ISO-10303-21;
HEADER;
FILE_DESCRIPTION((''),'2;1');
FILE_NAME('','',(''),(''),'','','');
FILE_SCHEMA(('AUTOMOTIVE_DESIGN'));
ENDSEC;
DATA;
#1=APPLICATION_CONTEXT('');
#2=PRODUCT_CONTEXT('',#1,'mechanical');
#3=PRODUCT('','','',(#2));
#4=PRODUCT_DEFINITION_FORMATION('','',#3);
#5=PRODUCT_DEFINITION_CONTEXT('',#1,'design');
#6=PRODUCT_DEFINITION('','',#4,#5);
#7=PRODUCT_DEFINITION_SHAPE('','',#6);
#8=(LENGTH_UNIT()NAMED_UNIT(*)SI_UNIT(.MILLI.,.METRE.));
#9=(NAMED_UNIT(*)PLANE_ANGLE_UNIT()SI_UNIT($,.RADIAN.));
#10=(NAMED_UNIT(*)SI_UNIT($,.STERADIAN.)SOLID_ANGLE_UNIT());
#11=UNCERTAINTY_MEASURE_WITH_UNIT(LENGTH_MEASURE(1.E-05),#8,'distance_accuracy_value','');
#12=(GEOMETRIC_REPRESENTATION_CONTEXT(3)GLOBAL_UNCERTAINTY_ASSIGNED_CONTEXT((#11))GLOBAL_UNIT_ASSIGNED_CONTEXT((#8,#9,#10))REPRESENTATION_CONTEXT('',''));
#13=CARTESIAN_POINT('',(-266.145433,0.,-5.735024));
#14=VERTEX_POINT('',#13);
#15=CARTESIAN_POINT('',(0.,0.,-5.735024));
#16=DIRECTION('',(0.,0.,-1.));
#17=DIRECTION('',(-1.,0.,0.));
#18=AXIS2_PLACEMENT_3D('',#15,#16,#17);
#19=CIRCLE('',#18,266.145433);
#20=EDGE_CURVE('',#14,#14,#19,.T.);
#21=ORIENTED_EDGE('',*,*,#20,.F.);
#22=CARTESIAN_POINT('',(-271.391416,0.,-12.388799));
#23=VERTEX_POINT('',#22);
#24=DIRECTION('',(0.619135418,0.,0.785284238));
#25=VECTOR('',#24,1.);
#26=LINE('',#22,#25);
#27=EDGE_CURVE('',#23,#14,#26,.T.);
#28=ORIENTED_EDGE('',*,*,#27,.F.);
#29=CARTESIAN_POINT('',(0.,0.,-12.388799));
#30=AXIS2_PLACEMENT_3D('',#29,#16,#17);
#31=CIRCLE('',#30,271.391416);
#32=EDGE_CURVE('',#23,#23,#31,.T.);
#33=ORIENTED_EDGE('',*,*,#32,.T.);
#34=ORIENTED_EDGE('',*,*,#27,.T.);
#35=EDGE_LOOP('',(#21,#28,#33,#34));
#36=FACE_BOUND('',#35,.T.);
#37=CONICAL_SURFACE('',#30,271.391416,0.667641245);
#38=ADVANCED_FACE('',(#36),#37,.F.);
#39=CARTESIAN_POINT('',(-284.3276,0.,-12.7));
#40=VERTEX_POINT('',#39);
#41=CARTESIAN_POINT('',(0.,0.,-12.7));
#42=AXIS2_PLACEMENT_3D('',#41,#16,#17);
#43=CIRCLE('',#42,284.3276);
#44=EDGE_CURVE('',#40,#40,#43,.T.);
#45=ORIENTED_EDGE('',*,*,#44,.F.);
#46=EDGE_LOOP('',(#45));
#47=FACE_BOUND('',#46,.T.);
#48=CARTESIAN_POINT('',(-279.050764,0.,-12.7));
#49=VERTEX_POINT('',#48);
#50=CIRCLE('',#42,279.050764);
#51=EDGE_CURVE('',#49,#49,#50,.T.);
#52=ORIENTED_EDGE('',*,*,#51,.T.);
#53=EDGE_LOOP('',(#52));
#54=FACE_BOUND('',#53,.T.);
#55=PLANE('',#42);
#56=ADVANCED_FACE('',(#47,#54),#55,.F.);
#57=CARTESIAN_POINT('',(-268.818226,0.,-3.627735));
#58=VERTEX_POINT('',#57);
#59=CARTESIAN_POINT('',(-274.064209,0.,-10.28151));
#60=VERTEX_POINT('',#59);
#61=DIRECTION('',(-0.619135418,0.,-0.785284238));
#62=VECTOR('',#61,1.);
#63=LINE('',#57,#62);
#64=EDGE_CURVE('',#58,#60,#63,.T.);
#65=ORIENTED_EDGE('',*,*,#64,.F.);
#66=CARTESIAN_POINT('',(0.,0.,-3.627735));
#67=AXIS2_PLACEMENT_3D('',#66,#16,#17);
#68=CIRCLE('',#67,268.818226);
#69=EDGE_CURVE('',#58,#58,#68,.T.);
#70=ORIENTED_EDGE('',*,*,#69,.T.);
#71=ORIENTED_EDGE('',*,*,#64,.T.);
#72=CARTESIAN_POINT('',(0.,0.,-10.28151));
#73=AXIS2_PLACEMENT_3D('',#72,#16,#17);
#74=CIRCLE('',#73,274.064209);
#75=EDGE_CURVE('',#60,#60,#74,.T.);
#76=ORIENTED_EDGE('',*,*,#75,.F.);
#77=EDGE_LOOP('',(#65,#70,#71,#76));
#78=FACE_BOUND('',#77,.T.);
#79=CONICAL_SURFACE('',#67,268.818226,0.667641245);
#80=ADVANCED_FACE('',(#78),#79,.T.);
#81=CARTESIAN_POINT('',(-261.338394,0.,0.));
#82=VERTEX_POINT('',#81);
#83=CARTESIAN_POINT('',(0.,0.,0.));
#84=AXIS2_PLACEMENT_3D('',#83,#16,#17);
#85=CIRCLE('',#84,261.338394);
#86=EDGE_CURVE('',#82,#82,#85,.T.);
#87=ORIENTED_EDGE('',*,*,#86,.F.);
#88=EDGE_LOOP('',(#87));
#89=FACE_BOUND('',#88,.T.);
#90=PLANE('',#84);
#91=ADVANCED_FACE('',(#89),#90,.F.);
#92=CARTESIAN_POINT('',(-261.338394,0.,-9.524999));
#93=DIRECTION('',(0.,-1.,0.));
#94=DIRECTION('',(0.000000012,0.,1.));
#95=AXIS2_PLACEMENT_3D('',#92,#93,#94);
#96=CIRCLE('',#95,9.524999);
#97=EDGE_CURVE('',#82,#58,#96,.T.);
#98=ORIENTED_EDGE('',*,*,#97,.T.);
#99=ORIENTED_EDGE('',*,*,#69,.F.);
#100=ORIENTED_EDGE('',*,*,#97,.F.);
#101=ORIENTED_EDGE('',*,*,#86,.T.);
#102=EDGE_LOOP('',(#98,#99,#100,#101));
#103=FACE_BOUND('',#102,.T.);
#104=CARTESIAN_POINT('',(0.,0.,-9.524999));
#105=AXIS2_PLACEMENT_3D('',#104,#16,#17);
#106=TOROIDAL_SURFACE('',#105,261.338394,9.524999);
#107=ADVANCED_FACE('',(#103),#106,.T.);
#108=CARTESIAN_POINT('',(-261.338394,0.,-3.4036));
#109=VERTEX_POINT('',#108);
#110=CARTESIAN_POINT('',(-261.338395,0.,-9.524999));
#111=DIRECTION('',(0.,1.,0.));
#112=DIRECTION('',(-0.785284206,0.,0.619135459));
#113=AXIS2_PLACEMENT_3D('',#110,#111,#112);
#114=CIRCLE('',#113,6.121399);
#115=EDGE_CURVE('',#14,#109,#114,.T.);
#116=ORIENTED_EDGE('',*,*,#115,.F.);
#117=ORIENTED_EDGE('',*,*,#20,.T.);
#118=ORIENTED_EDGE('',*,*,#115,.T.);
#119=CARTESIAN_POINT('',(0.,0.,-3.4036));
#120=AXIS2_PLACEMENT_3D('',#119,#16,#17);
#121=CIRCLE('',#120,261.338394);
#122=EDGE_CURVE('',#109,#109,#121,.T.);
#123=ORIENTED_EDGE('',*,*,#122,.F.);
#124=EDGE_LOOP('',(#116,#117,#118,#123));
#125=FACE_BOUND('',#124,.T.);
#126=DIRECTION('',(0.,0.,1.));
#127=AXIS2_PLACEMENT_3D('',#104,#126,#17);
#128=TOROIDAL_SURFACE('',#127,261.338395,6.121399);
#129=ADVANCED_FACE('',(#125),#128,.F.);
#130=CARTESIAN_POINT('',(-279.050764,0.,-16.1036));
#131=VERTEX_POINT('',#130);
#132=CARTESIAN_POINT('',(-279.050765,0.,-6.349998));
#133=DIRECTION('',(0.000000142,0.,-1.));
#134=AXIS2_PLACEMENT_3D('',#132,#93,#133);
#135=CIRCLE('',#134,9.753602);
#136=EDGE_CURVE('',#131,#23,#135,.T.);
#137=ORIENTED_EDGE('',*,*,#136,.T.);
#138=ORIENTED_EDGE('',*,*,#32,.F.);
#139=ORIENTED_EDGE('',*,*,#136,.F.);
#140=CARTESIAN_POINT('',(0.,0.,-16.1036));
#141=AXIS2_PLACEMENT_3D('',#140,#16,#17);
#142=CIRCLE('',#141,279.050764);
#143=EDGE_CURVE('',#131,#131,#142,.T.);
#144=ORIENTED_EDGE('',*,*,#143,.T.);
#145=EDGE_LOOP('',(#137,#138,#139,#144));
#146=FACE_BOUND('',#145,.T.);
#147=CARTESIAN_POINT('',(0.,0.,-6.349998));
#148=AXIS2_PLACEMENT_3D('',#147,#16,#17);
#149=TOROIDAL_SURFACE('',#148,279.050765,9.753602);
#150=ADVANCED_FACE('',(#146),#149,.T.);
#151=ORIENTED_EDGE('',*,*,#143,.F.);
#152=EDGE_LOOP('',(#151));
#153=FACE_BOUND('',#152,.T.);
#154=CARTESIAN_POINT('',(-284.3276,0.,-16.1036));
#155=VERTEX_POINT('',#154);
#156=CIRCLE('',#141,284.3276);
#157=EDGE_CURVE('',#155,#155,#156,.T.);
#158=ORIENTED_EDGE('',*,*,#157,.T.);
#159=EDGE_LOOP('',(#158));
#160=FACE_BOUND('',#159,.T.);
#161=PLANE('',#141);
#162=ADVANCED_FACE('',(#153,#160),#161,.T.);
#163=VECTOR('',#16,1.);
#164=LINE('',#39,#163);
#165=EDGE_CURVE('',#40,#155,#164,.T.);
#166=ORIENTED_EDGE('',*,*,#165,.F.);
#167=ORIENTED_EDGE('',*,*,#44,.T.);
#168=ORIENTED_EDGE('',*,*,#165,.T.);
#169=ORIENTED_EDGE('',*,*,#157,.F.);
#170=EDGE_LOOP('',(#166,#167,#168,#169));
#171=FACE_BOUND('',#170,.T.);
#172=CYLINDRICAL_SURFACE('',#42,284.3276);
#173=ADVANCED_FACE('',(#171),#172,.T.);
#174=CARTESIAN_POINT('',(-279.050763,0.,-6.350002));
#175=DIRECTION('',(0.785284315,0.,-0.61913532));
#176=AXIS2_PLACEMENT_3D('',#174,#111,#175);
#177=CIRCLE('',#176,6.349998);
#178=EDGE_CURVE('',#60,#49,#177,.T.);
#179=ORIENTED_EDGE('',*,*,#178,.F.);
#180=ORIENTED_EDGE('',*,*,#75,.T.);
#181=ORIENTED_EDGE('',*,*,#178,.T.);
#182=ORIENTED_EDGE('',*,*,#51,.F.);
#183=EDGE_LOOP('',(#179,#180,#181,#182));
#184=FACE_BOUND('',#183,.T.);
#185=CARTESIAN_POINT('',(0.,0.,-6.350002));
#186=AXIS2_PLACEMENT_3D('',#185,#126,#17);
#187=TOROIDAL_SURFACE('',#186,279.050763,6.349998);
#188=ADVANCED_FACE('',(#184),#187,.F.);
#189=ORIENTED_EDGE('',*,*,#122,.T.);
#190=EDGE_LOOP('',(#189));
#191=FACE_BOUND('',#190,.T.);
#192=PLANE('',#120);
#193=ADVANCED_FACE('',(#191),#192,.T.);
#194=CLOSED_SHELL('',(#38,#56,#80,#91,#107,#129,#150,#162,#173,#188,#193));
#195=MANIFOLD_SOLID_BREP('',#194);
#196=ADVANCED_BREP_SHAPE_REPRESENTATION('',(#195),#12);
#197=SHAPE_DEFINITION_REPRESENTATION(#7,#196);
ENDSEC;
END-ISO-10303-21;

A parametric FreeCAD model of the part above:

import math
import FreeCAD as App
import Part
import Sketcher

V = App.Vector
Q = App.Units.Quantity

doc = App.newDocument("Part")
params = doc.addObject("Spreadsheet::Sheet", "Params")
for row, (alias, value) in enumerate([
    ("sketch1_radius", "0.2499999 in"),
    ("sketch1_radius2", "0.375 in"),
    ("sketch1_radius3", "0.3840001 in"),
    ("revolution_angle", "360 deg"),
], start=1):
    params.set(f"A{row}", alias)
    params.set(f"B{row}", "=" + value)
    params.setAlias(f"B{row}", alias)

body = doc.addObject("PartDesign::Body", "Body")

# Sketch on XZ plane
sketch1 = doc.addObject("Sketcher::SketchObject", "Sketch")
body.addObject(sketch1)
sketch1.AttachmentSupport = (doc.XZ_Plane, [""])
sketch1.MapMode = "FlatFace"
sketch1.addGeometry(Part.LineSegment(V(0, -3.4, 0), V(0, 0, 0)), False)
sketch1.addGeometry(Part.LineSegment(V(0, 0, 0), V(-261.3, 0, 0)), False)
sketch1.addGeometry(Part.ArcOfCircle(Part.Circle(V(-261.3, -9.5, 0), V(0, 0, 1), 9.5), math.radians(90), math.radians(142)), False)
sketch1.addGeometry(Part.LineSegment(V(-268.8, -3.6, 0), V(-274.1, -10.3, 0)), False)
sketch1.addGeometry(Part.ArcOfCircle(Part.Circle(V(-279.1, -6.4, 0), V(0, 0, 1), 6.3), math.radians(-90), math.radians(-38)), False)
sketch1.addGeometry(Part.LineSegment(V(-279.1, -12.7, 0), V(-284.3, -12.7, 0)), False)
sketch1.addGeometry(Part.LineSegment(V(-284.3, -12.7, 0), V(-284.3, -16.1, 0)), False)
sketch1.addGeometry(Part.LineSegment(V(-284.3, -16.1, 0), V(-279.1, -16.1, 0)), False)
sketch1.addGeometry(Part.ArcOfCircle(Part.Circle(V(-279.1, -6.3, 0), V(0, 0, 1), 9.8), math.radians(-90), math.radians(-38)), False)
sketch1.addGeometry(Part.LineSegment(V(-271.4, -12.4, 0), V(-266.1, -5.7, 0)), False)
sketch1.addGeometry(Part.ArcOfCircle(Part.Circle(V(-261.3, -9.5, 0), V(0, 0, 1), 6.1), math.radians(90), math.radians(142)), False)
sketch1.addGeometry(Part.LineSegment(V(-261.3, -3.4, 0), V(0, -3.4, 0)), False)
sketch1.addConstraint(Sketcher.Constraint("Coincident", 0, 2, 1, 1))
sketch1.addConstraint(Sketcher.Constraint("Tangent", 1, 2, 2, 1))
sketch1.addConstraint(Sketcher.Constraint("Tangent", 2, 2, 3, 1))
sketch1.addConstraint(Sketcher.Constraint("Tangent", 3, 2, 4, 2))
sketch1.addConstraint(Sketcher.Constraint("Tangent", 4, 1, 5, 1))
sketch1.addConstraint(Sketcher.Constraint("Coincident", 5, 2, 6, 1))
sketch1.addConstraint(Sketcher.Constraint("Coincident", 6, 2, 7, 1))
sketch1.addConstraint(Sketcher.Constraint("Tangent", 7, 2, 8, 1))
sketch1.addConstraint(Sketcher.Constraint("Tangent", 8, 2, 9, 1))
sketch1.addConstraint(Sketcher.Constraint("Tangent", 9, 2, 10, 2))
sketch1.addConstraint(Sketcher.Constraint("Tangent", 10, 1, 11, 1))
sketch1.addConstraint(Sketcher.Constraint("Coincident", 11, 2, 0, 1))
sketch1.addConstraint(Sketcher.Constraint("Vertical", 0))
sketch1.addConstraint(Sketcher.Constraint("Horizontal", 1))
sketch1.addConstraint(Sketcher.Constraint("Horizontal", 5))
sketch1.addConstraint(Sketcher.Constraint("Vertical", 6))
sketch1.addConstraint(Sketcher.Constraint("Horizontal", 7))
sketch1.addConstraint(Sketcher.Constraint("Horizontal", 11))
sketch1.addConstraint(Sketcher.Constraint("Coincident", 0, 2, -1, 1))
sketch1.addConstraint(Sketcher.Constraint("Coincident", 8, 3, 4, 3))
sketch1.addConstraint(Sketcher.Constraint("Coincident", 10, 3, 2, 3))
sketch1.addConstraint(Sketcher.Constraint("Parallel", 3, 9))
sketch1.addConstraint(Sketcher.Constraint("Radius", 4, Q("0.2499999 in")))
sketch1.addConstraint(Sketcher.Constraint("Radius", 2, Q("0.375 in")))
sketch1.addConstraint(Sketcher.Constraint("Radius", 8, Q("0.3840001 in")))
sketch1.addConstraint(Sketcher.Constraint("DistanceY", 4, 1, -1, 1, Q("0.5 in")))
sketch1.addConstraint(Sketcher.Constraint("DistanceX", 5, 2, -1, 1, Q("11.194 in")))
sketch1.addConstraint(Sketcher.Constraint("DistanceY", 8, 2, -1, 1, 12.388799))
sketch1.addConstraint(Sketcher.Constraint("DistanceX", 1, 2, 1, 1, 261.338394))
sketch1.setExpression("Constraints[22]", "Params.sketch1_radius")
sketch1.setExpression("Constraints[23]", "Params.sketch1_radius2")
sketch1.setExpression("Constraints[24]", "Params.sketch1_radius3")
revolution = doc.addObject("PartDesign::Revolution", "Revolution")
body.addObject(revolution)
revolution.Profile = sketch1
revolution.ReferenceAxis = (sketch1, ["V_Axis"])
revolution.setExpression("Angle", "Params.revolution_angle")

doc.recompute()
